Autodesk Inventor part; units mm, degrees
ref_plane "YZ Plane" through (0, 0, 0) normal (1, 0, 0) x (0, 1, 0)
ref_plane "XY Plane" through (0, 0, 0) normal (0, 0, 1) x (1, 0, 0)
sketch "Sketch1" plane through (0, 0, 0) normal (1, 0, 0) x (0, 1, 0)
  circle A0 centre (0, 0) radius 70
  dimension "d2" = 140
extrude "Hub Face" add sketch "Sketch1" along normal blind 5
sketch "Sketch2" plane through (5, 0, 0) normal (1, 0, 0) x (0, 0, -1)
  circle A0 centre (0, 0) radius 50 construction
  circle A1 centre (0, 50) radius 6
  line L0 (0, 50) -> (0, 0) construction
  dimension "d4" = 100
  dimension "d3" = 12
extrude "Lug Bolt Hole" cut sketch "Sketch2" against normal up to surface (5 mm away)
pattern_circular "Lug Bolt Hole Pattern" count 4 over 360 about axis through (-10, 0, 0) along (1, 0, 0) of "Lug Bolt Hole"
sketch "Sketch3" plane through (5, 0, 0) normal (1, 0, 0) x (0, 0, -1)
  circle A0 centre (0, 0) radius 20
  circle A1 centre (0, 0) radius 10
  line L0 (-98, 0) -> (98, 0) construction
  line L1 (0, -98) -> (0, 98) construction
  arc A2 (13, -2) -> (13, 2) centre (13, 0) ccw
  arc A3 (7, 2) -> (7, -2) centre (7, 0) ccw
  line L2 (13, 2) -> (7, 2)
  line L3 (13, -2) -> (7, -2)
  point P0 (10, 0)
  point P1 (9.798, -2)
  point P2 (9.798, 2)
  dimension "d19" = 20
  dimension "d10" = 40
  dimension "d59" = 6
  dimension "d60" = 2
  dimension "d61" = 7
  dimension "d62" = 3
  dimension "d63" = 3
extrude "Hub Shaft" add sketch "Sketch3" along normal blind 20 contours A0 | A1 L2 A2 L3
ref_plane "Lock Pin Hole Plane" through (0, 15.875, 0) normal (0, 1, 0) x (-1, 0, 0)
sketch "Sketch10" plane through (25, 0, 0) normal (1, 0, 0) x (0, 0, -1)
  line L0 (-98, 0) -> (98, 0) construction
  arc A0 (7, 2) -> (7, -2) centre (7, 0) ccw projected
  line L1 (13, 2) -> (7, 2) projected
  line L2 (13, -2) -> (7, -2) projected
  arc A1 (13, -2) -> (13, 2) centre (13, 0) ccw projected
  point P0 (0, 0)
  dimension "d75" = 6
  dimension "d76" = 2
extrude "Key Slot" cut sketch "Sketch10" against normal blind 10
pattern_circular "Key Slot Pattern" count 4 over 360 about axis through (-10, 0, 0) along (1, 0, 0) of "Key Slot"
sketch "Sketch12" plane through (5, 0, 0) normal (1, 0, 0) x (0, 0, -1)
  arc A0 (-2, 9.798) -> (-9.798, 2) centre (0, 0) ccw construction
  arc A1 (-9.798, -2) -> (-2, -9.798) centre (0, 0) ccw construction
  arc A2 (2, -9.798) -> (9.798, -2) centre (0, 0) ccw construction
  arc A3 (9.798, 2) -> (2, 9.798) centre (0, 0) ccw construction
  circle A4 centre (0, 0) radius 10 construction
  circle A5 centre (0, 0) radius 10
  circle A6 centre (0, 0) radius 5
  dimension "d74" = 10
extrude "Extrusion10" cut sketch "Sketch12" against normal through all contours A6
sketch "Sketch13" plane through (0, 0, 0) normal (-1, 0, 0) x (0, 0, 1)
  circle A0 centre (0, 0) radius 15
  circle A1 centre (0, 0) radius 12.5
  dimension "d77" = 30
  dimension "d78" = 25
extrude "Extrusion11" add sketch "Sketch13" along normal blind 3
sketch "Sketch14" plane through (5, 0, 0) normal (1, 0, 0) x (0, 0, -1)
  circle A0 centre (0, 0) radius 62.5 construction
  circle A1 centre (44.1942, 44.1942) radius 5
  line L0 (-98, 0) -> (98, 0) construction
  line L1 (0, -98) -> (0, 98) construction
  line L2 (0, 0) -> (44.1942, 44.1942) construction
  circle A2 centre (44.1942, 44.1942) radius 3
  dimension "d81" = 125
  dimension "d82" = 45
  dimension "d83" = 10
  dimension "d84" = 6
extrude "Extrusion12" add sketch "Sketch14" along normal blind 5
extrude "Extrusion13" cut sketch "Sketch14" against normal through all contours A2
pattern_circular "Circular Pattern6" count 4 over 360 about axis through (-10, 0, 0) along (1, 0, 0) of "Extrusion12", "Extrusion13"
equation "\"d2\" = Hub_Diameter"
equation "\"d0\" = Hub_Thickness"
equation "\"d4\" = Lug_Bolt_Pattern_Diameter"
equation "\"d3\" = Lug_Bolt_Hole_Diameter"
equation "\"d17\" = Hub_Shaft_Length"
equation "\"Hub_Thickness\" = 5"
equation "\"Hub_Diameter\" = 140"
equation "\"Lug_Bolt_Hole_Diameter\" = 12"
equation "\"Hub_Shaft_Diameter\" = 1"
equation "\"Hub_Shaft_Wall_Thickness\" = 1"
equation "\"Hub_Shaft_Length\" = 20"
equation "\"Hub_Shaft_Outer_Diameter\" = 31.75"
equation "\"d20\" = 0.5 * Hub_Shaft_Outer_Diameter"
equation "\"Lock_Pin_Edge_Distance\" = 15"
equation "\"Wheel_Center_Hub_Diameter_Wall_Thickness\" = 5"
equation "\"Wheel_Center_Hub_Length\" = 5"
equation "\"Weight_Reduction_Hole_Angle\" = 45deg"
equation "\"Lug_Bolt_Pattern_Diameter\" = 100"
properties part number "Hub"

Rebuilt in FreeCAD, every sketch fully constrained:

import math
import FreeCAD as App
import Part
import Sketcher

V = App.Vector

doc = App.newDocument("Part")
body = doc.addObject("PartDesign::Body", "Body")

# Sketch on YZ plane
sketch1 = doc.addObject("Sketcher::SketchObject", "Sketch")
body.addObject(sketch1)
sketch1.AttachmentSupport = (doc.YZ_Plane, [""])
sketch1.MapMode = "FlatFace"
sketch1.addGeometry(Part.Circle(V(0, 0, 0), V(0, 0, 1), 70), False)
sketch1.addConstraint([
    Sketcher.Constraint("Coincident", 0, 3, -1, 1),
    Sketcher.Constraint("Diameter", 0, 140.0),
])
pad1 = doc.addObject("PartDesign::Pad", "Pad")
body.addObject(pad1)
pad1.Profile = sketch1
pad1.Length = 5

# Sketch on YZ plane
sketch2 = doc.addObject("Sketcher::SketchObject", "Sketch001")
body.addObject(sketch2)
sketch2.AttachmentSupport = (doc.YZ_Plane, [""])
sketch2.MapMode = "FlatFace"
sketch2.AttachmentOffset = App.Placement(V(0, 0, 5), App.Rotation())
sketch2.addGeometry(Part.Circle(V(50, 0, 0), V(0, 0, 1), 6), False)
sketch2.addConstraint([
    Sketcher.Constraint("PointOnObject", 0, 3, -1),
    Sketcher.Constraint("Diameter", 0, 12.0),
    Sketcher.Constraint("DistanceX", -1, 1, 0, 3, 50.0),
])
pocket1 = doc.addObject("PartDesign::Pocket", "Pocket")
body.addObject(pocket1)
pocket1.Profile = sketch2
pocket1.Length = 5
doc.recompute()

polarpattern = doc.addObject("PartDesign::PolarPattern", "PolarPattern")
body.addObject(polarpattern)
polarpattern.Originals = [pocket1]
polarpattern.Axis = (doc.X_Axis, [""])
polarpattern.Angle = 360
polarpattern.Occurrences = 4
body.Tip = polarpattern

# Sketch on YZ plane
sketch3 = doc.addObject("Sketcher::SketchObject", "Sketch002")
body.addObject(sketch3)
sketch3.AttachmentSupport = (doc.YZ_Plane, [""])
sketch3.MapMode = "FlatFace"
sketch3.AttachmentOffset = App.Placement(V(0, 0, 5), App.Rotation())
sketch3.addGeometry([
    Part.Circle(V(0, 0, 0), V(0, 0, 1), 20),
    Part.Circle(V(0, 0, 0), V(0, 0, 1), 10),
], False)
sketch3.addConstraint([
    Sketcher.Constraint("Coincident", 0, 3, -1, 1),
    Sketcher.Constraint("Coincident", 1, 3, -1, 1),
    Sketcher.Constraint("Diameter", 0, 40.0),
    Sketcher.Constraint("Diameter", 1, 20.0),
])
pad2 = doc.addObject("PartDesign::Pad", "Pad001")
body.addObject(pad2)
pad2.Profile = sketch3
pad2.Length = 20

# Sketch on YZ plane
sketch4 = doc.addObject("Sketcher::SketchObject", "Sketch003")
body.addObject(sketch4)
sketch4.AttachmentSupport = (doc.YZ_Plane, [""])
sketch4.MapMode = "FlatFace"
sketch4.AttachmentOffset = App.Placement(V(0, 0, 25), App.Rotation())
sketch4.addGeometry([
    Part.LineSegment(V(2, -13, 0), V(2, -7, 0)),
    Part.ArcOfCircle(Part.Circle(V(0, -7, 0), V(0, 0, 1), 2), math.radians(0), math.radians(180)),
    Part.LineSegment(V(-2, -7, 0), V(-2, -13, 0)),
    Part.ArcOfCircle(Part.Circle(V(0, -13, 0), V(0, 0, 1), 2), math.radians(180), math.radians(360)),
], False)
sketch4.addConstraint([
    Sketcher.Constraint("Tangent", 0, 2, 1, 1),
    Sketcher.Constraint("Tangent", 1, 2, 2, 1),
    Sketcher.Constraint("Tangent", 2, 2, 3, 1),
    Sketcher.Constraint("Tangent", 3, 2, 0, 1),
    Sketcher.Constraint("Vertical", 0),
    Sketcher.Constraint("Vertical", 2),
    Sketcher.Constraint("PointOnObject", 1, 3, -2),
    Sketcher.Constraint("Radius", 1, 2.0),
    Sketcher.Constraint("DistanceY", 0, 1, 0, 2, 6.0),
    Sketcher.Constraint("DistanceY", 1, 3, -1, 1, 7.0),
])
pocket2 = doc.addObject("PartDesign::Pocket", "Pocket001")
body.addObject(pocket2)
pocket2.Profile = sketch4
pocket2.Length = 10
doc.recompute()

polarpattern2 = doc.addObject("PartDesign::PolarPattern", "PolarPattern001")
body.addObject(polarpattern2)
polarpattern2.Originals = [pocket2]
polarpattern2.Axis = (doc.X_Axis, [""])
polarpattern2.Angle = 360
polarpattern2.Occurrences = 4
body.Tip = polarpattern2

# Sketch on YZ plane
sketch5 = doc.addObject("Sketcher::SketchObject", "Sketch004")
body.addObject(sketch5)
sketch5.AttachmentSupport = (doc.YZ_Plane, [""])
sketch5.MapMode = "FlatFace"
sketch5.AttachmentOffset = App.Placement(V(0, 0, 5), App.Rotation())
sketch5.addGeometry(Part.Circle(V(0, 0, 0), V(0, 0, 1), 5), False)
sketch5.addConstraint([
    Sketcher.Constraint("Coincident", 0, 3, -1, 1),
    Sketcher.Constraint("Diameter", 0, 10.0),
])
pocket3 = doc.addObject("PartDesign::Pocket", "Pocket002")
body.addObject(pocket3)
pocket3.Profile = sketch5
pocket3.Type = "ThroughAll"

# Sketch on YZ plane
sketch6 = doc.addObject("Sketcher::SketchObject", "Sketch005")
body.addObject(sketch6)
sketch6.AttachmentSupport = (doc.YZ_Plane, [""])
sketch6.MapMode = "FlatFace"
sketch6.addGeometry([
    Part.Circle(V(0, 0, 0), V(0, 0, 1), 15),
    Part.Circle(V(0, 0, 0), V(0, 0, 1), 12),
], False)
sketch6.addConstraint([
    Sketcher.Constraint("Coincident", 0, 3, -1, 1),
    Sketcher.Constraint("Coincident", 1, 3, -1, 1),
    Sketcher.Constraint("Diameter", 0, 30.0),
    Sketcher.Constraint("Diameter", 1, 25.0),
])
pad3 = doc.addObject("PartDesign::Pad", "Pad002")
body.addObject(pad3)
pad3.Profile = sketch6
pad3.Length = 3
pad3.Reversed = True

# Sketch on YZ plane
sketch7 = doc.addObject("Sketcher::SketchObject", "Sketch006")
body.addObject(sketch7)
sketch7.AttachmentSupport = (doc.YZ_Plane, [""])
sketch7.MapMode = "FlatFace"
sketch7.AttachmentOffset = App.Placement(V(0, 0, 5), App.Rotation())
sketch7.addGeometry([
    Part.Circle(V(44.2, -44.2, 0), V(0, 0, 1), 5),
    Part.Circle(V(44.2, -44.2, 0), V(0, 0, 1), 3),
], False)
sketch7.addConstraint([
    Sketcher.Constraint("Coincident", 1, 3, 0, 3),
    Sketcher.Constraint("Diameter", 0, 10.0),
    Sketcher.Constraint("Diameter", 1, 6.0),
    Sketcher.Constraint("DistanceX", -1, 1, 0, 3, 44.1942),
    Sketcher.Constraint("DistanceY", 0, 3, -1, 1, 44.1942),
])
pad4 = doc.addObject("PartDesign::Pad", "Pad003")
body.addObject(pad4)
pad4.Profile = sketch7
pad4.Length = 5

# Sketch on YZ plane
sketch8 = doc.addObject("Sketcher::SketchObject", "Sketch007")
body.addObject(sketch8)
sketch8.AttachmentSupport = (doc.YZ_Plane, [""])
sketch8.MapMode = "FlatFace"
sketch8.AttachmentOffset = App.Placement(V(0, 0, 5), App.Rotation())
sketch8.addGeometry(Part.Circle(V(44.2, -44.2, 0), V(0, 0, 1), 3), False)
sketch8.addConstraint([
    Sketcher.Constraint("Diameter", 0, 6.0),
    Sketcher.Constraint("DistanceX", -1, 1, 0, 3, 44.1942),
    Sketcher.Constraint("DistanceY", 0, 3, -1, 1, 44.1942),
])
pocket4 = doc.addObject("PartDesign::Pocket", "Pocket003")
body.addObject(pocket4)
pocket4.Profile = sketch8
pocket4.Type = "ThroughAll"
doc.recompute()

polarpattern3 = doc.addObject("PartDesign::PolarPattern", "PolarPattern002")
body.addObject(polarpattern3)
polarpattern3.Originals = [pad4, pocket4]
polarpattern3.Axis = (doc.X_Axis, [""])
polarpattern3.Angle = 360
polarpattern3.Occurrences = 4
body.Tip = polarpattern3

doc.recompute()
